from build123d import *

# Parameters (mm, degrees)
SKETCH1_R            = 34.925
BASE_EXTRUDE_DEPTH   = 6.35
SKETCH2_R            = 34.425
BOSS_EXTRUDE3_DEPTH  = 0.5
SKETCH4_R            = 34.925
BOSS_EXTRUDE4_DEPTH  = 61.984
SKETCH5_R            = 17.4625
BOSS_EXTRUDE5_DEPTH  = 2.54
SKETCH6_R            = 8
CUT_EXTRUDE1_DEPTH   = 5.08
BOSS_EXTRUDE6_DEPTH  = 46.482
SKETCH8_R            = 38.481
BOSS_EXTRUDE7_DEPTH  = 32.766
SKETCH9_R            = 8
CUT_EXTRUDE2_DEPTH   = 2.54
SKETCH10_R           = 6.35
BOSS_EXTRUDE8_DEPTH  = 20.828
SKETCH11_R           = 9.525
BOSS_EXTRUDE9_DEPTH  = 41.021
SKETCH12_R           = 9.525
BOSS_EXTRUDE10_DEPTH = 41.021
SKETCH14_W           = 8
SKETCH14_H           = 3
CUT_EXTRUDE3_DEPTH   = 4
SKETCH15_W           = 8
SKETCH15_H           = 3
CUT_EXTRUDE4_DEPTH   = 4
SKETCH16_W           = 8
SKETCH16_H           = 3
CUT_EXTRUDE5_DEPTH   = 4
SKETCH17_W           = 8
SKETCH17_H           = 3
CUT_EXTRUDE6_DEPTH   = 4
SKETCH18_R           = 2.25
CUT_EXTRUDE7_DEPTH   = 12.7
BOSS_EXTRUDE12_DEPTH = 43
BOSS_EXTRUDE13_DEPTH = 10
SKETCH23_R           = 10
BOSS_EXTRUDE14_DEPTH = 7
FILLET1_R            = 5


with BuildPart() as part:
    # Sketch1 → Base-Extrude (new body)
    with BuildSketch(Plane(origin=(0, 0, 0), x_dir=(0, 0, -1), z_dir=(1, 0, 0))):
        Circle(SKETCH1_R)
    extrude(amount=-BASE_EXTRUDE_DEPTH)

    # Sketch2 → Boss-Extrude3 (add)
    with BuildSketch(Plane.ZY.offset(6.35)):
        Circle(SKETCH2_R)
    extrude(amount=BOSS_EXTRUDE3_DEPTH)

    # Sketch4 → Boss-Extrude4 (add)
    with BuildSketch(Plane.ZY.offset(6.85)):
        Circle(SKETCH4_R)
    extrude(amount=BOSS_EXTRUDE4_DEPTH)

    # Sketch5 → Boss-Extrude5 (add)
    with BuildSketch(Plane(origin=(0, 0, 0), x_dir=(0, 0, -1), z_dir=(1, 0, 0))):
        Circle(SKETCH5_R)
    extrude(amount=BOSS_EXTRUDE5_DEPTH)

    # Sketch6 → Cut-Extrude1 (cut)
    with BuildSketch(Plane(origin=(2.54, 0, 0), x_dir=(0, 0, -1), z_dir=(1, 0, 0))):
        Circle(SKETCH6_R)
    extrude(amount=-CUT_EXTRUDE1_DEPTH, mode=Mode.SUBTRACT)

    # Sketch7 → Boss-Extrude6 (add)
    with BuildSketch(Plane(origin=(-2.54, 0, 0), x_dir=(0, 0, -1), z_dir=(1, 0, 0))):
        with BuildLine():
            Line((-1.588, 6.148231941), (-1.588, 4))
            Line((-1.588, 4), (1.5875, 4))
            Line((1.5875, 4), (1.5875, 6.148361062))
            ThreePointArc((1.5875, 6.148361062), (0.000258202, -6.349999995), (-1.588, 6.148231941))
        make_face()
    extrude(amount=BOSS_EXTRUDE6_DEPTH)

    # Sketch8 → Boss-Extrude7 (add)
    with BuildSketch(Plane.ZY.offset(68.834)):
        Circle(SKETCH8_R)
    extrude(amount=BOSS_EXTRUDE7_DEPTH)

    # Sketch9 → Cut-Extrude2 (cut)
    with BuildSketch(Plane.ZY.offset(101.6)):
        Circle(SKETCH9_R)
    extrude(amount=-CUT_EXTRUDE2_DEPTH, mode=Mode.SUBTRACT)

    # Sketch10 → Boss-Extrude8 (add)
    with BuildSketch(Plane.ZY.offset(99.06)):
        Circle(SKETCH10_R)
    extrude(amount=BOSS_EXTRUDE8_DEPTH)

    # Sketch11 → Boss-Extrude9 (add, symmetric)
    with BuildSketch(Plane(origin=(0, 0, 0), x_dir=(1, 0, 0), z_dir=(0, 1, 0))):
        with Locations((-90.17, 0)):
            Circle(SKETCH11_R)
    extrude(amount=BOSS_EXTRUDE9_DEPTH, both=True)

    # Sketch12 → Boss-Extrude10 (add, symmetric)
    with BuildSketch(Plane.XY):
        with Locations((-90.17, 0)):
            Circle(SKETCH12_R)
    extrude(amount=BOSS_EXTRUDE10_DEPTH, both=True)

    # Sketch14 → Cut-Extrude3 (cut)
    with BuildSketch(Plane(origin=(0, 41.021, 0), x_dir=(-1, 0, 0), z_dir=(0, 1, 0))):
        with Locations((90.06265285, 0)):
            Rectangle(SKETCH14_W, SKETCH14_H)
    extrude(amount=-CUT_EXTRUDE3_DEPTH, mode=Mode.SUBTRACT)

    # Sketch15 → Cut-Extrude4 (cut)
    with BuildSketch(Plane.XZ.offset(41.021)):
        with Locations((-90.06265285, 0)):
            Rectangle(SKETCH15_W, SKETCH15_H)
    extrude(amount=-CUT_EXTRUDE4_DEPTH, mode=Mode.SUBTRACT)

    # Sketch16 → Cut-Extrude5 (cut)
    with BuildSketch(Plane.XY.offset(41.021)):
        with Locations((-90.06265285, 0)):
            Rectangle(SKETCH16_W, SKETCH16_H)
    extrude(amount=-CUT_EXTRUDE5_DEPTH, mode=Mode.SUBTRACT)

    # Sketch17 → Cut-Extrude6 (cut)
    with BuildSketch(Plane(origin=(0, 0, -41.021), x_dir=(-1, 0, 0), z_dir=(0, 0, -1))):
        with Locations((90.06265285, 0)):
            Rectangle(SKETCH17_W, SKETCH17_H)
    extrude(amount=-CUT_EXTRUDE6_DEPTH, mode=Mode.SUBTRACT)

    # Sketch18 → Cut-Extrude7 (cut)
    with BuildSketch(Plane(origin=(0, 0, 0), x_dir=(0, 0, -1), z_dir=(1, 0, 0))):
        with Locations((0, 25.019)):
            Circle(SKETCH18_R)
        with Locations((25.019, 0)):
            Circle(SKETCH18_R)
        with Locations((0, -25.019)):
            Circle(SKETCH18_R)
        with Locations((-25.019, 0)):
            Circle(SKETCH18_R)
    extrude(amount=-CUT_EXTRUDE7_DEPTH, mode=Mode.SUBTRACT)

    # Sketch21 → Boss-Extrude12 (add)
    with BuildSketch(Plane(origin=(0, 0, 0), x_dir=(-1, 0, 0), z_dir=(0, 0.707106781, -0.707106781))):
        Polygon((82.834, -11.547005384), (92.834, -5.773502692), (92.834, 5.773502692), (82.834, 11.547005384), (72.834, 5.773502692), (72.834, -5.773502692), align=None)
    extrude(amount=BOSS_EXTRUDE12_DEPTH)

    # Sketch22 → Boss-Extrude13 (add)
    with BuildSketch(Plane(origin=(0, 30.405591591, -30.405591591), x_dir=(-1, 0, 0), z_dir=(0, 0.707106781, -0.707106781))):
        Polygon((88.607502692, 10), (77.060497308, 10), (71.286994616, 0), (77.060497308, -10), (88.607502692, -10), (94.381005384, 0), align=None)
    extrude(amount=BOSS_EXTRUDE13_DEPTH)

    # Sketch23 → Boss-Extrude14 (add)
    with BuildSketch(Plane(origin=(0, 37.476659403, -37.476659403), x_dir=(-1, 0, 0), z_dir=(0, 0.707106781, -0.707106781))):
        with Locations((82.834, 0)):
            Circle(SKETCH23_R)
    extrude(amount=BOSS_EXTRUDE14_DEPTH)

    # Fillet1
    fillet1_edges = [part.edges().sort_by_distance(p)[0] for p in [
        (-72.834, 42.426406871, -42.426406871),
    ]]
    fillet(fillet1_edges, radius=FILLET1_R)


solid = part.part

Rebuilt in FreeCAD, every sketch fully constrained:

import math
import FreeCAD as App
import Part
import Sketcher
Q = App.Units.Quantity


def edges_at(feature, points):
    """Names of the edges that pass closest to the given points."""
    edges = feature.Shape.Edges
    near = lambda p: min(range(len(edges)), key=lambda i: edges[i].distToShape(Part.Vertex(*p))[0])
    return sorted({f"Edge{near(p) + 1}" for p in points})

doc = App.newDocument("Part")
params = doc.addObject("Spreadsheet::Sheet", "Params")
for row, (alias, value) in enumerate([
    ("sketch1_diameter", "2.75 in"),
    ("pad1_length", "0.25 in"),
    ("pad2_length", "0.5 mm"),
    ("sketch3_diameter", "2.75 in"),
    ("pad3_length", "61.984 mm"),
    ("sketch4_diameter", "1.375 in"),
    ("pad4_length", "0.1 in"),
    ("pocket1_length", "0.2 in"),
    ("sketch6_radius", "0.25 in"),
    ("pad5_length", "1.83 in"),
    ("sketch7_diameter", "3.03 in"),
    ("pad6_length", "1.29 in"),
    ("pocket2_length", "0.1 in"),
    ("sketch9_diameter", "0.5 in"),
    ("pad7_length", "0.82 in"),
    ("sketch10_diameter", "0.75 in"),
    ("pad8_length", "3.23 in"),
    ("sketch11_diameter", "0.75 in"),
    ("pad9_length", "3.23 in"),
    ("pocket3_length", "4 mm"),
    ("pocket4_length", "4 mm"),
    ("pocket5_length", "4 mm"),
    ("pocket6_length", "4 mm"),
    ("pocket7_length", "0.5 in"),
    ("pad10_length", "43 mm"),
    ("pad11_length", "10 mm"),
    ("pad12_length", "7 mm"),
    ("fillet_radius", "5 mm"),
], start=1):
    params.set(f"A{row}", alias)
    params.set(f"B{row}", "=" + value)
    params.setAlias(f"B{row}", alias)

body = doc.addObject("PartDesign::Body", "Body")

sketch1 = doc.addObject("Sketcher::SketchObject", "Sketch")
body.addObject(sketch1)
sketch1.AttachmentSupport = (doc.YZ_Plane, [""])
sketch1.MapMode = "FlatFace"
sketch1.addGeometry(Part.Circle(App.Vector(0, 0, 0), App.Vector(0, 0, 1), 34.925), False)
sketch1.addConstraint(Sketcher.Constraint("Coincident", 0, 3, -1, 1))
sketch1.addConstraint(Sketcher.Constraint("Diameter", 0, Q("2.75 in")))
sketch1.setExpression("Constraints[1]", "Params.sketch1_diameter")
pad1 = doc.addObject("PartDesign::Pad", "Pad")
body.addObject(pad1)
pad1.Profile = sketch1
pad1.setExpression("Length", "Params.pad1_length")
pad1.Reversed = True

sketch2 = doc.addObject("Sketcher::SketchObject", "Sketch001")
body.addObject(sketch2)
sketch2.AttachmentSupport = (doc.YZ_Plane, [""])
sketch2.MapMode = "FlatFace"
sketch2.AttachmentOffset = App.Placement(App.Vector(0, 0, -0.25 * 25.4), App.Rotation())
sketch2.addGeometry(Part.Circle(App.Vector(0, 0, 0), App.Vector(0, 0, 1), 34.425), False)
sketch2.addConstraint(Sketcher.Constraint("Coincident", 0, 3, -1, 1))
sketch2.addConstraint(Sketcher.Constraint("Diameter", 0, Q("68.85 mm")))
pad2 = doc.addObject("PartDesign::Pad", "Pad001")
body.addObject(pad2)
pad2.Profile = sketch2
pad2.setExpression("Length", "Params.pad2_length")
pad2.Reversed = True

sketch3 = doc.addObject("Sketcher::SketchObject", "Sketch002")
body.addObject(sketch3)
sketch3.AttachmentSupport = (doc.YZ_Plane, [""])
sketch3.MapMode = "FlatFace"
sketch3.AttachmentOffset = App.Placement(App.Vector(0, 0, -6.85), App.Rotation())
sketch3.addGeometry(Part.Circle(App.Vector(0, 0, 0), App.Vector(0, 0, 1), 34.925), False)
sketch3.addConstraint(Sketcher.Constraint("Coincident", 0, 3, -1, 1))
sketch3.addConstraint(Sketcher.Constraint("Diameter", 0, Q("2.75 in")))
sketch3.setExpression("Constraints[1]", "Params.sketch3_diameter")
pad3 = doc.addObject("PartDesign::Pad", "Pad002")
body.addObject(pad3)
pad3.Profile = sketch3
pad3.setExpression("Length", "Params.pad3_length")
pad3.Reversed = True

sketch4 = doc.addObject("Sketcher::SketchObject", "Sketch003")
body.addObject(sketch4)
sketch4.AttachmentSupport = (doc.YZ_Plane, [""])
sketch4.MapMode = "FlatFace"
sketch4.addGeometry(Part.Circle(App.Vector(0, 0, 0), App.Vector(0, 0, 1), 17.4625), False)
sketch4.addConstraint(Sketcher.Constraint("Coincident", 0, 3, -1, 1))
sketch4.addConstraint(Sketcher.Constraint("Diameter", 0, Q("1.375 in")))
sketch4.setExpression("Constraints[1]", "Params.sketch4_diameter")
pad4 = doc.addObject("PartDesign::Pad", "Pad003")
body.addObject(pad4)
pad4.Profile = sketch4
pad4.setExpression("Length", "Params.pad4_length")

sketch5 = doc.addObject("Sketcher::SketchObject", "Sketch004")
body.addObject(sketch5)
sketch5.AttachmentSupport = (doc.YZ_Plane, [""])
sketch5.MapMode = "FlatFace"
sketch5.AttachmentOffset = App.Placement(App.Vector(0, 0, 0.1 * 25.4), App.Rotation())
sketch5.addGeometry(Part.Circle(App.Vector(0, 0, 0), App.Vector(0, 0, 1), 8), False)
sketch5.addConstraint(Sketcher.Constraint("Coincident", 0, 3, -1, 1))
sketch5.addConstraint(Sketcher.Constraint("Diameter", 0, Q("16 mm")))
pocket1 = doc.addObject("PartDesign::Pocket", "Pocket")
body.addObject(pocket1)
pocket1.Profile = sketch5
pocket1.setExpression("Length", "Params.pocket1_length")

sketch6 = doc.addObject("Sketcher::SketchObject", "Sketch005")
body.addObject(sketch6)
sketch6.AttachmentSupport = (doc.YZ_Plane, [""])
sketch6.MapMode = "FlatFace"
sketch6.AttachmentOffset = App.Placement(App.Vector(0, 0, -0.1 * 25.4), App.Rotation())
sketch6.addGeometry(Part.LineSegment(App.Vector(4, 1.588, 0), App.Vector(6.148232, 1.588, 0)), False)
sketch6.addGeometry(Part.ArcOfCircle(Part.Circle(App.Vector(0, 0, 0), App.Vector(0, 0, 1), 6.35), math.radians(14.482172), math.radians(345.522488)), False)
sketch6.addGeometry(Part.LineSegment(App.Vector(6.148361, -1.5875, 0), App.Vector(4, -1.5875, 0)), False)
sketch6.addGeometry(Part.LineSegment(App.Vector(4, -1.5875, 0), App.Vector(4, 1.588, 0)), False)
sketch6.addConstraint(Sketcher.Constraint("Coincident", 0, 2, 1, 1))
sketch6.addConstraint(Sketcher.Constraint("Coincident", 1, 2, 2, 1))
sketch6.addConstraint(Sketcher.Constraint("Coincident", 2, 2, 3, 1))
sketch6.addConstraint(Sketcher.Constraint("Coincident", 3, 2, 0, 1))
sketch6.addConstraint(Sketcher.Constraint("Horizontal", 0))
sketch6.addConstraint(Sketcher.Constraint("Horizontal", 2))
sketch6.addConstraint(Sketcher.Constraint("Vertical", 3))
sketch6.addConstraint(Sketcher.Constraint("Coincident", 1, 3, -1, 1))
sketch6.addConstraint(Sketcher.Constraint("Radius", 1, Q("0.25 in")))
sketch6.addConstraint(Sketcher.Constraint("DistanceY", 1, 2, -1, 1, Q("0.0625 in")))
sketch6.addConstraint(Sketcher.Constraint("DistanceY", 3, 1, 3, 2, Q("3.1755 mm")))
sketch6.addConstraint(Sketcher.Constraint("DistanceX", 0, 1, 0, 2, Q("2.148232 mm")))
sketch6.setExpression("Constraints[8]", "Params.sketch6_radius")
pad5 = doc.addObject("PartDesign::Pad", "Pad004")
body.addObject(pad5)
pad5.Profile = sketch6
pad5.setExpression("Length", "Params.pad5_length")

sketch7 = doc.addObject("Sketcher::SketchObject", "Sketch006")
body.addObject(sketch7)
sketch7.AttachmentSupport = (doc.YZ_Plane, [""])
sketch7.MapMode = "FlatFace"
sketch7.AttachmentOffset = App.Placement(App.Vector(0, 0, -2.71 * 25.4), App.Rotation())
sketch7.addGeometry(Part.Circle(App.Vector(0, 0, 0), App.Vector(0, 0, 1), 38.481), False)
sketch7.addConstraint(Sketcher.Constraint("Coincident", 0, 3, -1, 1))
sketch7.addConstraint(Sketcher.Constraint("Diameter", 0, Q("3.03 in")))
sketch7.setExpression("Constraints[1]", "Params.sketch7_diameter")
pad6 = doc.addObject("PartDesign::Pad", "Pad005")
body.addObject(pad6)
pad6.Profile = sketch7
pad6.setExpression("Length", "Params.pad6_length")
pad6.Reversed = True

sketch8 = doc.addObject("Sketcher::SketchObject", "Sketch007")
body.addObject(sketch8)
sketch8.AttachmentSupport = (doc.YZ_Plane, [""])
sketch8.MapMode = "FlatFace"
sketch8.AttachmentOffset = App.Placement(App.Vector(0, 0, -4 * 25.4), App.Rotation())
sketch8.addGeometry(Part.Circle(App.Vector(0, 0, 0), App.Vector(0, 0, 1), 8), False)
sketch8.addConstraint(Sketcher.Constraint("Coincident", 0, 3, -1, 1))
sketch8.addConstraint(Sketcher.Constraint("Diameter", 0, Q("16 mm")))
pocket2 = doc.addObject("PartDesign::Pocket", "Pocket001")
body.addObject(pocket2)
pocket2.Profile = sketch8
pocket2.setExpression("Length", "Params.pocket2_length")
pocket2.Reversed = True

sketch9 = doc.addObject("Sketcher::SketchObject", "Sketch008")
body.addObject(sketch9)
sketch9.AttachmentSupport = (doc.YZ_Plane, [""])
sketch9.MapMode = "FlatFace"
sketch9.AttachmentOffset = App.Placement(App.Vector(0, 0, -3.9 * 25.4), App.Rotation())
sketch9.addGeometry(Part.Circle(App.Vector(0, 0, 0), App.Vector(0, 0, 1), 6.35), False)
sketch9.addConstraint(Sketcher.Constraint("Coincident", 0, 3, -1, 1))
sketch9.addConstraint(Sketcher.Constraint("Diameter", 0, Q("0.5 in")))
sketch9.setExpression("Constraints[1]", "Params.sketch9_diameter")
pad7 = doc.addObject("PartDesign::Pad", "Pad006")
body.addObject(pad7)
pad7.Profile = sketch9
pad7.setExpression("Length", "Params.pad7_length")
pad7.Reversed = True

sketch10 = doc.addObject("Sketcher::SketchObject", "Sketch009")
body.addObject(sketch10)
sketch10.AttachmentSupport = (doc.XZ_Plane, [""])
sketch10.MapMode = "FlatFace"
sketch10.addGeometry(Part.Circle(App.Vector(-90.17, 0, 0), App.Vector(0, 0, 1), 9.525), False)
sketch10.addConstraint(Sketcher.Constraint("PointOnObject", 0, 3, -1))
sketch10.addConstraint(Sketcher.Constraint("Diameter", 0, Q("0.75 in")))
sketch10.addConstraint(Sketcher.Constraint("DistanceX", 0, 3, -1, 1, Q("3.55 in")))
sketch10.setExpression("Constraints[1]", "Params.sketch10_diameter")
pad8 = doc.addObject("PartDesign::Pad", "Pad007")
body.addObject(pad8)
pad8.Profile = sketch10
pad8.setExpression("Length", "Params.pad8_length")
pad8.Midplane = True

sketch11 = doc.addObject("Sketcher::SketchObject", "Sketch010")
body.addObject(sketch11)
sketch11.AttachmentSupport = (doc.XY_Plane, [""])
sketch11.MapMode = "FlatFace"
sketch11.addGeometry(Part.Circle(App.Vector(-90.17, 0, 0), App.Vector(0, 0, 1), 9.525), False)
sketch11.addConstraint(Sketcher.Constraint("PointOnObject", 0, 3, -1))
sketch11.addConstraint(Sketcher.Constraint("Diameter", 0, Q("0.75 in")))
sketch11.addConstraint(Sketcher.Constraint("DistanceX", 0, 3, -1, 1, Q("3.55 in")))
sketch11.setExpression("Constraints[1]", "Params.sketch11_diameter")
pad9 = doc.addObject("PartDesign::Pad", "Pad008")
body.addObject(pad9)
pad9.Profile = sketch11
pad9.setExpression("Length", "Params.pad9_length")
pad9.Midplane = True

sketch12 = doc.addObject("Sketcher::SketchObject", "Sketch011")
body.addObject(sketch12)
sketch12.AttachmentSupport = (doc.XZ_Plane, [""])
sketch12.MapMode = "FlatFace"
sketch12.AttachmentOffset = App.Placement(App.Vector(0, 0, -1.615 * 25.4), App.Rotation())
sketch12.addGeometry(Part.LineSegment(App.Vector(-86.062653, 1.5, 0), App.Vector(-86.062653, -1.5, 0)), False)
sketch12.addGeometry(Part.LineSegment(App.Vector(-86.062653, -1.5, 0), App.Vector(-94.062653, -1.5, 0)), False)
sketch12.addGeometry(Part.LineSegment(App.Vector(-94.062653, -1.5, 0), App.Vector(-94.062653, 1.5, 0)), False)
sketch12.addGeometry(Part.LineSegment(App.Vector(-94.062653, 1.5, 0), App.Vector(-86.062653, 1.5, 0)), False)
sketch12.addConstraint(Sketcher.Constraint("Coincident", 0, 2, 1, 1))
sketch12.addConstraint(Sketcher.Constraint("Coincident", 1, 2, 2, 1))
sketch12.addConstraint(Sketcher.Constraint("Coincident", 2, 2, 3, 1))
sketch12.addConstraint(Sketcher.Constraint("Coincident", 3, 2, 0, 1))
sketch12.addConstraint(Sketcher.Constraint("Vertical", 0))
sketch12.addConstraint(Sketcher.Constraint("Horizontal", 1))
sketch12.addConstraint(Sketcher.Constraint("Vertical", 2))
sketch12.addConstraint(Sketcher.Constraint("Horizontal", 3))
sketch12.addConstraint(Sketcher.Constraint("DistanceX", 1, 2, 1, 1, Q("8 mm")))
sketch12.addConstraint(Sketcher.Constraint("DistanceY", 0, 2, 0, 1, Q("3 mm")))
sketch12.addConstraint(Sketcher.Constraint("DistanceY", 0, 2, -1, 1, Q("1.5 mm")))
sketch12.addConstraint(Sketcher.Constraint("DistanceX", 0, 2, -1, 1, Q("86.062653 mm")))
pocket3 = doc.addObject("PartDesign::Pocket", "Pocket002")
body.addObject(pocket3)
pocket3.Profile = sketch12
pocket3.setExpression("Length", "Params.pocket3_length")
pocket3.Reversed = True

sketch13 = doc.addObject("Sketcher::SketchObject", "Sketch012")
body.addObject(sketch13)
sketch13.AttachmentSupport = (doc.XZ_Plane, [""])
sketch13.MapMode = "FlatFace"
sketch13.AttachmentOffset = App.Placement(App.Vector(0, 0, 1.615 * 25.4), App.Rotation())
sketch13.addGeometry(Part.LineSegment(App.Vector(-94.062653, 1.5, 0), App.Vector(-94.062653, -1.5, 0)), False)
sketch13.addGeometry(Part.LineSegment(App.Vector(-94.062653, -1.5, 0), App.Vector(-86.062653, -1.5, 0)), False)
sketch13.addGeometry(Part.LineSegment(App.Vector(-86.062653, -1.5, 0), App.Vector(-86.062653, 1.5, 0)), False)
sketch13.addGeometry(Part.LineSegment(App.Vector(-86.062653, 1.5, 0), App.Vector(-94.062653, 1.5, 0)), False)
sketch13.addConstraint(Sketcher.Constraint("Coincident", 0, 2, 1, 1))
sketch13.addConstraint(Sketcher.Constraint("Coincident", 1, 2, 2, 1))
sketch13.addConstraint(Sketcher.Constraint("Coincident", 2, 2, 3, 1))
sketch13.addConstraint(Sketcher.Constraint("Coincident", 3, 2, 0, 1))
sketch13.addConstraint(Sketcher.Constraint("Vertical", 0))
sketch13.addConstraint(Sketcher.Constraint("Horizontal", 1))
sketch13.addConstraint(Sketcher.Constraint("Vertical", 2))
sketch13.addConstraint(Sketcher.Constraint("Horizontal", 3))
sketch13.addConstraint(Sketcher.Constraint("DistanceX", 1, 1, 1, 2, Q("8 mm")))
sketch13.addConstraint(Sketcher.Constraint("DistanceY", 0, 2, 0, 1, Q("3 mm")))
sketch13.addConstraint(Sketcher.Constraint("DistanceY", 0, 2, -1, 1, Q("1.5 mm")))
sketch13.addConstraint(Sketcher.Constraint("DistanceX", 0, 2, -1, 1, Q("94.062653 mm")))
pocket4 = doc.addObject("PartDesign::Pocket", "Pocket003")
body.addObject(pocket4)
pocket4.Profile = sketch13
pocket4.setExpression("Length", "Params.pocket4_length")

sketch14 = doc.addObject("Sketcher::SketchObject", "Sketch013")
body.addObject(sketch14)
sketch14.AttachmentSupport = (doc.XY_Plane, [""])
sketch14.MapMode = "FlatFace"
sketch14.AttachmentOffset = App.Placement(App.Vector(0, 0, 1.615 * 25.4), App.Rotation())
sketch14.addGeometry(Part.LineSegment(App.Vector(-94.062653, 1.5, 0), App.Vector(-94.062653, -1.5, 0)), False)
sketch14.addGeometry(Part.LineSegment(App.Vector(-94.062653, -1.5, 0), App.Vector(-86.062653, -1.5, 0)), False)
sketch14.addGeometry(Part.LineSegment(App.Vector(-86.062653, -1.5, 0), App.Vector(-86.062653, 1.5, 0)), False)
sketch14.addGeometry(Part.LineSegment(App.Vector(-86.062653, 1.5, 0), App.Vector(-94.062653, 1.5, 0)), False)
sketch14.addConstraint(Sketcher.Constraint("Coincident", 0, 2, 1, 1))
sketch14.addConstraint(Sketcher.Constraint("Coincident", 1, 2, 2, 1))
sketch14.addConstraint(Sketcher.Constraint("Coincident", 2, 2, 3, 1))
sketch14.addConstraint(Sketcher.Constraint("Coincident", 3, 2, 0, 1))
sketch14.addConstraint(Sketcher.Constraint("Vertical", 0))
sketch14.addConstraint(Sketcher.Constraint("Horizontal", 1))
sketch14.addConstraint(Sketcher.Constraint("Vertical", 2))
sketch14.addConstraint(Sketcher.Constraint("Horizontal", 3))
sketch14.addConstraint(Sketcher.Constraint("DistanceX", 1, 1, 1, 2, Q("8 mm")))
sketch14.addConstraint(Sketcher.Constraint("DistanceY", 0, 2, 0, 1, Q("3 mm")))
sketch14.addConstraint(Sketcher.Constraint("DistanceY", 0, 2, -1, 1, Q("1.5 mm")))
sketch14.addConstraint(Sketcher.Constraint("DistanceX", 0, 2, -1, 1, Q("94.062653 mm")))
pocket5 = doc.addObject("PartDesign::Pocket", "Pocket004")
body.addObject(pocket5)
pocket5.Profile = sketch14
pocket5.setExpression("Length", "Params.pocket5_length")

sketch15 = doc.addObject("Sketcher::SketchObject", "Sketch014")
body.addObject(sketch15)
sketch15.AttachmentSupport = (doc.XY_Plane, [""])
sketch15.MapMode = "FlatFace"
sketch15.AttachmentOffset = App.Placement(App.Vector(0, 0, -1.615 * 25.4), App.Rotation())
sketch15.addGeometry(Part.LineSegment(App.Vector(-86.062653, 1.5, 0), App.Vector(-86.062653, -1.5, 0)), False)
sketch15.addGeometry(Part.LineSegment(App.Vector(-86.062653, -1.5, 0), App.Vector(-94.062653, -1.5, 0)), False)
sketch15.addGeometry(Part.LineSegment(App.Vector(-94.062653, -1.5, 0), App.Vector(-94.062653, 1.5, 0)), False)
sketch15.addGeometry(Part.LineSegment(App.Vector(-94.062653, 1.5, 0), App.Vector(-86.062653, 1.5, 0)), False)
sketch15.addConstraint(Sketcher.Constraint("Coincident", 0, 2, 1, 1))
sketch15.addConstraint(Sketcher.Constraint("Coincident", 1, 2, 2, 1))
sketch15.addConstraint(Sketcher.Constraint("Coincident", 2, 2, 3, 1))
sketch15.addConstraint(Sketcher.Constraint("Coincident", 3, 2, 0, 1))
sketch15.addConstraint(Sketcher.Constraint("Vertical", 0))
sketch15.addConstraint(Sketcher.Constraint("Horizontal", 1))
sketch15.addConstraint(Sketcher.Constraint("Vertical", 2))
sketch15.addConstraint(Sketcher.Constraint("Horizontal", 3))
sketch15.addConstraint(Sketcher.Constraint("DistanceX", 1, 2, 1, 1, Q("8 mm")))
sketch15.addConstraint(Sketcher.Constraint("DistanceY", 0, 2, 0, 1, Q("3 mm")))
sketch15.addConstraint(Sketcher.Constraint("DistanceY", 0, 2, -1, 1, Q("1.5 mm")))
sketch15.addConstraint(Sketcher.Constraint("DistanceX", 0, 2, -1, 1, Q("86.062653 mm")))
pocket6 = doc.addObject("PartDesign::Pocket", "Pocket005")
body.addObject(pocket6)
pocket6.Profile = sketch15
pocket6.setExpression("Length", "Params.pocket6_length")
pocket6.Reversed = True

sketch16 = doc.addObject("Sketcher::SketchObject", "Sketch015")
body.addObject(sketch16)
sketch16.AttachmentSupport = (doc.YZ_Plane, [""])
sketch16.MapMode = "FlatFace"
sketch16.addGeometry(Part.Circle(App.Vector(25.019, 0, 0), App.Vector(0, 0, 1), 2.25), False)
sketch16.addGeometry(Part.Circle(App.Vector(0, -25.019, 0), App.Vector(0, 0, 1), 2.25), False)
sketch16.addGeometry(Part.Circle(App.Vector(-25.019, 0, 0), App.Vector(0, 0, 1), 2.25), False)
sketch16.addGeometry(Part.Circle(App.Vector(0, 25.019, 0), App.Vector(0, 0, 1), 2.25), False)
sketch16.addConstraint(Sketcher.Constraint("Equal", 0, 1))
sketch16.addConstraint(Sketcher.Constraint("Equal", 1, 2))
sketch16.addConstraint(Sketcher.Constraint("Equal", 2, 3))
sketch16.addConstraint(Sketcher.Constraint("Symmetric", 0, 3, 2, 3, -1, 1))
sketch16.addConstraint(Sketcher.Constraint("Symmetric", 1, 3, 3, 3, -1, 1))
sketch16.addConstraint(Sketcher.Constraint("PointOnObject", 0, 3, -1))
sketch16.addConstraint(Sketcher.Constraint("PointOnObject", 1, 3, -2))
sketch16.addConstraint(Sketcher.Constraint("Diameter", 0, Q("4.5 mm")))
sketch16.addConstraint(Sketcher.Constraint("DistanceX", 2, 3, 0, 3, Q("1.97 in")))
sketch16.addConstraint(Sketcher.Constraint("DistanceY", 1, 3, 3, 3, Q("1.97 in")))
pocket7 = doc.addObject("PartDesign::Pocket", "Pocket006")
body.addObject(pocket7)
pocket7.Profile = sketch16
pocket7.setExpression("Length", "Params.pocket7_length")

sketch17 = doc.addObject("Sketcher::SketchObject", "Sketch016")
body.addObject(sketch17)
sketch17.Placement = App.Placement(App.Vector(0, 0, 0), App.Rotation(App.Vector(-1, 0, 0), App.Vector(0, 0.707106781, 0.707106781), App.Vector(0, 0.707106781, -0.707106781), "ZXY"))
sketch17.addGeometry(Part.LineSegment(App.Vector(82.834, -11.547005, 0), App.Vector(92.834, -5.773503, 0)), False)
sketch17.addGeometry(Part.LineSegment(App.Vector(92.834, -5.773503, 0), App.Vector(92.834, 5.773503, 0)), False)
sketch17.addGeometry(Part.LineSegment(App.Vector(92.834, 5.773503, 0), App.Vector(82.834, 11.547005, 0)), False)
sketch17.addGeometry(Part.LineSegment(App.Vector(82.834, 11.547005, 0), App.Vector(72.834, 5.773503, 0)), False)
sketch17.addGeometry(Part.LineSegment(App.Vector(72.834, 5.773503, 0), App.Vector(72.834, -5.773503, 0)), False)
sketch17.addGeometry(Part.LineSegment(App.Vector(72.834, -5.773503, 0), App.Vector(82.834, -11.547005, 0)), False)
sketch17.addConstraint(Sketcher.Constraint("Coincident", 0, 2, 1, 1))
sketch17.addConstraint(Sketcher.Constraint("Coincident", 1, 2, 2, 1))
sketch17.addConstraint(Sketcher.Constraint("Coincident", 2, 2, 3, 1))
sketch17.addConstraint(Sketcher.Constraint("Coincident", 3, 2, 4, 1))
sketch17.addConstraint(Sketcher.Constraint("Coincident", 4, 2, 5, 1))
sketch17.addConstraint(Sketcher.Constraint("Coincident", 5, 2, 0, 1))
sketch17.addConstraint(Sketcher.Constraint("Vertical", 1))
sketch17.addConstraint(Sketcher.Constraint("Vertical", 4))
sketch17.addConstraint(Sketcher.Constraint("Symmetric", 2, 2, 5, 2, -1))
sketch17.addConstraint(Sketcher.Constraint("Parallel", 0, 3))
sketch17.addConstraint(Sketcher.Constraint("Parallel", 2, 5))
sketch17.addConstraint(Sketcher.Constraint("Horizontal", 1, 2, 3, 2))
sketch17.addConstraint(Sketcher.Constraint("Horizontal", 0, 2, 4, 2))
sketch17.addConstraint(Sketcher.Constraint("Angle", 0, Q("30 deg")))
sketch17.addConstraint(Sketcher.Constraint("DistanceX", -1, 1, 0, 2, Q("92.834 mm")))
sketch17.addConstraint(Sketcher.Constraint("DistanceX", -1, 1, 2, 2, Q("82.834 mm")))
sketch17.addConstraint(Sketcher.Constraint("DistanceY", 1, 1, 1, 2, Q("11.547005 mm")))
pad10 = doc.addObject("PartDesign::Pad", "Pad009")
body.addObject(pad10)
pad10.Profile = sketch17
pad10.setExpression("Length", "Params.pad10_length")

sketch18 = doc.addObject("Sketcher::SketchObject", "Sketch017")
body.addObject(sketch18)
sketch18.Placement = App.Placement(App.Vector(0, 30.405592, -30.405592), App.Rotation(App.Vector(-1, 0, 0), App.Vector(0, 0.707106781, 0.707106781), App.Vector(0, 0.707106781, -0.707106781), "ZXY"))
sketch18.addGeometry(Part.LineSegment(App.Vector(88.607503, 10, 0), App.Vector(77.060497, 10, 0)), False)
sketch18.addGeometry(Part.LineSegment(App.Vector(77.060497, 10, 0), App.Vector(71.286995, 0, 0)), False)
sketch18.addGeometry(Part.LineSegment(App.Vector(71.286995, 0, 0), App.Vector(77.060497, -10, 0)), False)
sketch18.addGeometry(Part.LineSegment(App.Vector(77.060497, -10, 0), App.Vector(88.607503, -10, 0)), False)
sketch18.addGeometry(Part.LineSegment(App.Vector(88.607503, -10, 0), App.Vector(94.381005, 0, 0)), False)
sketch18.addGeometry(Part.LineSegment(App.Vector(94.381005, 0, 0), App.Vector(88.607503, 10, 0)), False)
sketch18.addConstraint(Sketcher.Constraint("Coincident", 0, 2, 1, 1))
sketch18.addConstraint(Sketcher.Constraint("Coincident", 1, 2, 2, 1))
sketch18.addConstraint(Sketcher.Constraint("Coincident", 2, 2, 3, 1))
sketch18.addConstraint(Sketcher.Constraint("Coincident", 3, 2, 4, 1))
sketch18.addConstraint(Sketcher.Constraint("Coincident", 4, 2, 5, 1))
sketch18.addConstraint(Sketcher.Constraint("Coincident", 5, 2, 0, 1))
sketch18.addConstraint(Sketcher.Constraint("Horizontal", 0))
sketch18.addConstraint(Sketcher.Constraint("Horizontal", 3))
sketch18.addConstraint(Sketcher.Constraint("Symmetric", 0, 2, 2, 2, -1))
sketch18.addConstraint(Sketcher.Constraint("PointOnObject", 1, 2, -1))
sketch18.addConstraint(Sketcher.Constraint("PointOnObject", 4, 2, -1))
sketch18.addConstraint(Sketcher.Constraint("Parallel", 1, 4))
sketch18.addConstraint(Sketcher.Constraint("Parallel", 2, 5))
sketch18.addConstraint(Sketcher.Constraint("Angle", 1, Q("-120 deg")))
sketch18.addConstraint(Sketcher.Constraint("DistanceY", -1, 1, 0, 2, Q("10 mm")))
sketch18.addConstraint(Sketcher.Constraint("DistanceX", 0, 2, 0, 1, Q("11.547005 mm")))
sketch18.addConstraint(Sketcher.Constraint("DistanceX", -1, 1, 0, 2, Q("77.060497 mm")))
pad11 = doc.addObject("PartDesign::Pad", "Pad010")
body.addObject(pad11)
pad11.Profile = sketch18
pad11.setExpression("Length", "Params.pad11_length")

sketch19 = doc.addObject("Sketcher::SketchObject", "Sketch018")
body.addObject(sketch19)
sketch19.Placement = App.Placement(App.Vector(0, 37.476659, -37.476659), App.Rotation(App.Vector(-1, 0, 0), App.Vector(0, 0.707106781, 0.707106781), App.Vector(0, 0.707106781, -0.707106781), "ZXY"))
sketch19.addGeometry(Part.Circle(App.Vector(82.834, 0, 0), App.Vector(0, 0, 1), 10), False)
sketch19.addConstraint(Sketcher.Constraint("PointOnObject", 0, 3, -1))
sketch19.addConstraint(Sketcher.Constraint("Diameter", 0, Q("20 mm")))
sketch19.addConstraint(Sketcher.Constraint("DistanceX", -1, 1, 0, 3, Q("82.834 mm")))
pad12 = doc.addObject("PartDesign::Pad", "Pad011")
body.addObject(pad12)
pad12.Profile = sketch19
pad12.setExpression("Length", "Params.pad12_length")
doc.recompute()

fillet = doc.addObject("PartDesign::Fillet", "Fillet")
body.addObject(fillet)
fillet.Base = (pad12, edges_at(pad12, [(-72.834, 42.426, -42.426)]))
fillet.setExpression("Radius", "Params.fillet_radius")

doc.recompute()
